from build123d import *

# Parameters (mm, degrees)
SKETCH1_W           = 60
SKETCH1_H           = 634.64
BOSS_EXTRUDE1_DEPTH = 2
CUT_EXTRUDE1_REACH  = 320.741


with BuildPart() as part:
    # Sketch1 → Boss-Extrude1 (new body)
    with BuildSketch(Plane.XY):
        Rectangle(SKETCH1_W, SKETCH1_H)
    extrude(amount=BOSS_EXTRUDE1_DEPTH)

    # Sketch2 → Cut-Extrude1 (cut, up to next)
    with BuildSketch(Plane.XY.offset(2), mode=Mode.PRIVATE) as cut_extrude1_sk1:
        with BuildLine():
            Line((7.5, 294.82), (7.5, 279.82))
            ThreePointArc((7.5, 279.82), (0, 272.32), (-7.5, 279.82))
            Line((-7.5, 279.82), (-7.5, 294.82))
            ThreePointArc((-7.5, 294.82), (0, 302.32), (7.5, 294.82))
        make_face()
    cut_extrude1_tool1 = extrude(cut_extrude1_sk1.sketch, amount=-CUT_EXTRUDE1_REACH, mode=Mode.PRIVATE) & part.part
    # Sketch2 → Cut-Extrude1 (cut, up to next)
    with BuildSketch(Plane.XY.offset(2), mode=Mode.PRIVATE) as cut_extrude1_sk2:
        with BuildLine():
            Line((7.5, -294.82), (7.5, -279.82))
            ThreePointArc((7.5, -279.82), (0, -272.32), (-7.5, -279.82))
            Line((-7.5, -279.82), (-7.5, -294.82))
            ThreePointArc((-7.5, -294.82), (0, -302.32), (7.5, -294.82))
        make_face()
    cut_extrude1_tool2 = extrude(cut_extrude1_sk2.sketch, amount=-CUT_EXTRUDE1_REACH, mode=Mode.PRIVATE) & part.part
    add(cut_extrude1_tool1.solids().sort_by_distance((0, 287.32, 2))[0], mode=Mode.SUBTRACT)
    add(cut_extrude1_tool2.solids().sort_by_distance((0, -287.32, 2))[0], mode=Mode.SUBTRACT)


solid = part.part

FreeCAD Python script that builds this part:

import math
import FreeCAD as App
import Part
import Sketcher

V = App.Vector
Q = App.Units.Quantity

doc = App.newDocument("Part")
params = doc.addObject("Spreadsheet::Sheet", "Params")
for row, (alias, value) in enumerate([
    ("sketch1_width", "60 mm"),
    ("sketch1_height", "634.64 mm"),
    ("pad1_length", "2 mm"),
    ("sketch2_radius", "7.5 mm"),
    ("sketch2_height", "15 mm"),
    ("sketch3_radius", "7.5 mm"),
    ("sketch3_height", "15 mm"),
], start=1):
    params.set(f"A{row}", alias)
    params.set(f"B{row}", "=" + value)
    params.setAlias(f"B{row}", alias)

body = doc.addObject("PartDesign::Body", "Body")

sketch1 = body.newObject("Sketcher::SketchObject", "Sketch")
sketch1.AttachmentSupport = (doc.getObject("XY_Plane"), [""])
sketch1.MapMode = "FlatFace"
sketch1.addGeometry(Part.LineSegment(V(-30, 317, 0), V(-30, -317, 0)), False)
sketch1.addGeometry(Part.LineSegment(V(-30, -317, 0), V(30, -317, 0)), False)
sketch1.addGeometry(Part.LineSegment(V(30, -317, 0), V(30, 317, 0)), False)
sketch1.addGeometry(Part.LineSegment(V(30, 317, 0), V(-30, 317, 0)), False)
sketch1.addConstraint(Sketcher.Constraint("Coincident", 0, 2, 1, 1))
sketch1.addConstraint(Sketcher.Constraint("Coincident", 1, 2, 2, 1))
sketch1.addConstraint(Sketcher.Constraint("Coincident", 2, 2, 3, 1))
sketch1.addConstraint(Sketcher.Constraint("Coincident", 3, 2, 0, 1))
sketch1.addConstraint(Sketcher.Constraint("Vertical", 0))
sketch1.addConstraint(Sketcher.Constraint("Horizontal", 1))
sketch1.addConstraint(Sketcher.Constraint("Vertical", 2))
sketch1.addConstraint(Sketcher.Constraint("Horizontal", 3))
sketch1.addConstraint(Sketcher.Constraint("Symmetric", 0, 2, 2, 2, -1, 1))
sketch1.addConstraint(Sketcher.Constraint("DistanceX", 1, 1, 1, 2, Q("60 mm")))
sketch1.addConstraint(Sketcher.Constraint("DistanceY", 0, 2, 0, 1, Q("634.64 mm")))
sketch1.setExpression("Constraints[9]", "Params.sketch1_width")
sketch1.setExpression("Constraints[10]", "Params.sketch1_height")
pad1 = body.newObject("PartDesign::Pad", "Pad")
pad1.Profile = sketch1
pad1.setExpression("Length", "Params.pad1_length")

sketch2 = body.newObject("Sketcher::SketchObject", "Sketch001")
sketch2.AttachmentSupport = (doc.getObject("XY_Plane"), [""])
sketch2.MapMode = "FlatFace"
sketch2.AttachmentOffset = App.Placement(V(0, 0, 2), App.Rotation())
sketch2.addGeometry(Part.LineSegment(V(8, 280, 0), V(8, 295, 0)), False)
sketch2.addGeometry(Part.ArcOfCircle(Part.Circle(V(0, 295, 0), V(0, 0, 1), 8), math.radians(0), math.radians(180)), False)
sketch2.addGeometry(Part.LineSegment(V(-8, 295, 0), V(-8, 280, 0)), False)
sketch2.addGeometry(Part.ArcOfCircle(Part.Circle(V(0, 280, 0), V(0, 0, 1), 8), math.radians(180), math.radians(360)), False)
sketch2.addConstraint(Sketcher.Constraint("Tangent", 0, 2, 1, 1))
sketch2.addConstraint(Sketcher.Constraint("Tangent", 1, 2, 2, 1))
sketch2.addConstraint(Sketcher.Constraint("Tangent", 2, 2, 3, 1))
sketch2.addConstraint(Sketcher.Constraint("Tangent", 3, 2, 0, 1))
sketch2.addConstraint(Sketcher.Constraint("Vertical", 0))
sketch2.addConstraint(Sketcher.Constraint("Vertical", 2))
sketch2.addConstraint(Sketcher.Constraint("PointOnObject", 1, 3, -2))
sketch2.addConstraint(Sketcher.Constraint("Radius", 1, Q("7.5 mm")))
sketch2.addConstraint(Sketcher.Constraint("DistanceY", 0, 1, 0, 2, Q("15 mm")))
sketch2.addConstraint(Sketcher.Constraint("DistanceY", -1, 1, 1, 3, Q("294.82 mm")))
sketch2.setExpression("Constraints[7]", "Params.sketch2_radius")
sketch2.setExpression("Constraints[8]", "Params.sketch2_height")
pocket1 = body.newObject("PartDesign::Pocket", "Pocket")
pocket1.Profile = sketch2
pocket1.Type = "UpToFirst"

sketch3 = body.newObject("Sketcher::SketchObject", "Sketch002")
sketch3.AttachmentSupport = (doc.getObject("XY_Plane"), [""])
sketch3.MapMode = "FlatFace"
sketch3.AttachmentOffset = App.Placement(V(0, 0, 2), App.Rotation())
sketch3.addGeometry(Part.LineSegment(V(8, -295, 0), V(8, -280, 0)), False)
sketch3.addGeometry(Part.ArcOfCircle(Part.Circle(V(0, -280, 0), V(0, 0, 1), 8), math.radians(0), math.radians(180)), False)
sketch3.addGeometry(Part.LineSegment(V(-8, -280, 0), V(-8, -295, 0)), False)
sketch3.addGeometry(Part.ArcOfCircle(Part.Circle(V(0, -295, 0), V(0, 0, 1), 8), math.radians(180), math.radians(360)), False)
sketch3.addConstraint(Sketcher.Constraint("Tangent", 0, 2, 1, 1))
sketch3.addConstraint(Sketcher.Constraint("Tangent", 1, 2, 2, 1))
sketch3.addConstraint(Sketcher.Constraint("Tangent", 2, 2, 3, 1))
sketch3.addConstraint(Sketcher.Constraint("Tangent", 3, 2, 0, 1))
sketch3.addConstraint(Sketcher.Constraint("Vertical", 0))
sketch3.addConstraint(Sketcher.Constraint("Vertical", 2))
sketch3.addConstraint(Sketcher.Constraint("PointOnObject", 1, 3, -2))
sketch3.addConstraint(Sketcher.Constraint("Radius", 1, Q("7.5 mm")))
sketch3.addConstraint(Sketcher.Constraint("DistanceY", 0, 1, 0, 2, Q("15 mm")))
sketch3.addConstraint(Sketcher.Constraint("DistanceY", 1, 3, -1, 1, Q("279.82 mm")))
sketch3.setExpression("Constraints[7]", "Params.sketch3_radius")
sketch3.setExpression("Constraints[8]", "Params.sketch3_height")
pocket2 = body.newObject("PartDesign::Pocket", "Pocket001")
pocket2.Profile = sketch3
pocket2.Type = "UpToFirst"

doc.recompute()
